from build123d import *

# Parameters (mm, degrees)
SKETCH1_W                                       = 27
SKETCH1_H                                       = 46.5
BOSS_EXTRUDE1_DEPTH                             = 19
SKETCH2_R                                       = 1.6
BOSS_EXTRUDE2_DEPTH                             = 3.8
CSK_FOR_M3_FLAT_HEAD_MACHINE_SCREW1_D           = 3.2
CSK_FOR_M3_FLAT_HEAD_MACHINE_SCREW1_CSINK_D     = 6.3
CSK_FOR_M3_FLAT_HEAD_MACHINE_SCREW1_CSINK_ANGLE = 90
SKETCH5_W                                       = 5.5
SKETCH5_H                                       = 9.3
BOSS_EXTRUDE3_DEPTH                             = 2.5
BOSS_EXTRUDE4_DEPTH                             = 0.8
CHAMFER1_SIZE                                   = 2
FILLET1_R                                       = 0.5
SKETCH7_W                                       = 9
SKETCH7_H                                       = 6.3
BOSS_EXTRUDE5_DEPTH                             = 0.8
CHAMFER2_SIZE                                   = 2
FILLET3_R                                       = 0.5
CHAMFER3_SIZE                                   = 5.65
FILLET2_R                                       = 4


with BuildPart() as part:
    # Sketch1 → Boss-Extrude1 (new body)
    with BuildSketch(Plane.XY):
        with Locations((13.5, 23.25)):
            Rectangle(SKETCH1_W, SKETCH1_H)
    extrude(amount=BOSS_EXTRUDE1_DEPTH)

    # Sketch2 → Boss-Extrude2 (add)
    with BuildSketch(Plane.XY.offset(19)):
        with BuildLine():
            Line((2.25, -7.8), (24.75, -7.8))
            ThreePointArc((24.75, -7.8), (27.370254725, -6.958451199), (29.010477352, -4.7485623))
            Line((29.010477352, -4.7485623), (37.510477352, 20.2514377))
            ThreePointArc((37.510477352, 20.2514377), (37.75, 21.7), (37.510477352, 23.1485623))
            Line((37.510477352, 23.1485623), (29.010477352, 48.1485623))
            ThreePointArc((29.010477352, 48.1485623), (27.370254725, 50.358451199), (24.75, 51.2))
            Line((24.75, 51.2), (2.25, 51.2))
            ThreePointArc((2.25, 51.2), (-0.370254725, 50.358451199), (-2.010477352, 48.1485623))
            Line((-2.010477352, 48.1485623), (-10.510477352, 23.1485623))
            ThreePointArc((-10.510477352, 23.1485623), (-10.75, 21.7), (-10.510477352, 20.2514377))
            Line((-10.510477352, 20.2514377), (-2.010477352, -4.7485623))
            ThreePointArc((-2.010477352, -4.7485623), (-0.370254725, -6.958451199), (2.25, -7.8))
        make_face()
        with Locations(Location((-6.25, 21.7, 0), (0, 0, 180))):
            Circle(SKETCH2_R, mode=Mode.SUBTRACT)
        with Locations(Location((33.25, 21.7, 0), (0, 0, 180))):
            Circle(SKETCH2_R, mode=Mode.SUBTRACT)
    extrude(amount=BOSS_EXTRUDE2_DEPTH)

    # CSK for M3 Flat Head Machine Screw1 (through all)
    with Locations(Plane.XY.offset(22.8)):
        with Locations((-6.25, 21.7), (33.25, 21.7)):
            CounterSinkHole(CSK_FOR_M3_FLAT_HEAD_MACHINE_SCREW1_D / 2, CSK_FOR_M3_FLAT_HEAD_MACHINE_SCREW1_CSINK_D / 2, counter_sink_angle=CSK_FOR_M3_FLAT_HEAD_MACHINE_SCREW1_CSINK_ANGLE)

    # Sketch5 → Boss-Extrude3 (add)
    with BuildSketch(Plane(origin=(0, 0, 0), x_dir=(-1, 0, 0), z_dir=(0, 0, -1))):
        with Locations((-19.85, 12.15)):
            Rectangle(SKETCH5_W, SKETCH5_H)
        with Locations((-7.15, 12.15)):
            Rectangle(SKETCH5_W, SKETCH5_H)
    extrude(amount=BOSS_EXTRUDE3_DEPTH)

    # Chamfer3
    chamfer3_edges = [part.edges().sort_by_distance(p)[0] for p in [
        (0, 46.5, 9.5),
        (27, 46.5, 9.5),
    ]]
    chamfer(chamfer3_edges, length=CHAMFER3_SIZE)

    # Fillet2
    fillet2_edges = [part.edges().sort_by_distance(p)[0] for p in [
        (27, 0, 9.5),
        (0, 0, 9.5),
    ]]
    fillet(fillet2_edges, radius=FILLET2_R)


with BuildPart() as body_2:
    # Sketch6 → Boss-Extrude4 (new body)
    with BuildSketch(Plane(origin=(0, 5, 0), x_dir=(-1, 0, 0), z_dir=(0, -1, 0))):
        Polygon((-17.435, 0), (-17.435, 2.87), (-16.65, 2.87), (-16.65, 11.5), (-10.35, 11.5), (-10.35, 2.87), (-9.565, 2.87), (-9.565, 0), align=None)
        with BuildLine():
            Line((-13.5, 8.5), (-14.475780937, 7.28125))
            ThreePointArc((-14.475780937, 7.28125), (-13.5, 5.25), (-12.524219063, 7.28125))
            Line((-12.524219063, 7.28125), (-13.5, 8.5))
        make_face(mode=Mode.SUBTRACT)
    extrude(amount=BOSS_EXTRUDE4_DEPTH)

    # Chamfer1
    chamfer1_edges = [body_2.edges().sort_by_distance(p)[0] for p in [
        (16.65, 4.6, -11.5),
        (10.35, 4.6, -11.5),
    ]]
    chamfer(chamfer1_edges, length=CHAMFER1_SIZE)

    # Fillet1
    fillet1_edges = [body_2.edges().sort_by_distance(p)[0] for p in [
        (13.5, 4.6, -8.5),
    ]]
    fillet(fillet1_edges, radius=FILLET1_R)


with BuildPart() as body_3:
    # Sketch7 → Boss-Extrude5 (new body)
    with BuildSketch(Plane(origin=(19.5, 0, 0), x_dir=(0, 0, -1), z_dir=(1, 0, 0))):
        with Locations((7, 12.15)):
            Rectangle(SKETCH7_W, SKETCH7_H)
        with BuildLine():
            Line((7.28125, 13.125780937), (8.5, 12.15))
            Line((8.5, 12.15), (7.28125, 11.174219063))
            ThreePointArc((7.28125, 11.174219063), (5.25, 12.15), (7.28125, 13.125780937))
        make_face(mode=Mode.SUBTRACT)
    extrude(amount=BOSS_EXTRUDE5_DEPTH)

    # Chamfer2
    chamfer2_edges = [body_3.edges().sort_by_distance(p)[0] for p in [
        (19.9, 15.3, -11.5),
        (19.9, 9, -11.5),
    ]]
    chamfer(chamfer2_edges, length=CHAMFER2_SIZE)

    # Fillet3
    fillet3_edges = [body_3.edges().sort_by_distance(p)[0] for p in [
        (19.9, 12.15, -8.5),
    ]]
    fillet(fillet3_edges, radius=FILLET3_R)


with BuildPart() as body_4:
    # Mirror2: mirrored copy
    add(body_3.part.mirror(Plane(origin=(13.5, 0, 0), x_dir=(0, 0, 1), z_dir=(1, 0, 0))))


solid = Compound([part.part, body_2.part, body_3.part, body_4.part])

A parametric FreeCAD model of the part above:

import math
import FreeCAD as App
import Part
import Sketcher
from FreeCAD import Vector
Q = App.Units.Quantity


def edges_at(feature, points):
    """Names of the edges that pass closest to the given points."""
    edges = feature.Shape.Edges
    near = lambda p: min(range(len(edges)), key=lambda i: edges[i].distToShape(Part.Vertex(*p))[0])
    return sorted({f"Edge{near(p) + 1}" for p in points})

doc = App.newDocument("Part")
body = doc.addObject("PartDesign::Body", "Body")

# Sketch on XY plane
sketch1 = body.newObject("Sketcher::SketchObject", "Sketch")
sketch1.AttachmentSupport = (doc.getObject("XY_Plane"), [""])
sketch1.MapMode = "FlatFace"
sketch1.addGeometry(Part.LineSegment(Vector(0, 46, 0), Vector(0, 0, 0)), False)
sketch1.addGeometry(Part.LineSegment(Vector(0, 0, 0), Vector(27, 0, 0)), False)
sketch1.addGeometry(Part.LineSegment(Vector(27, 0, 0), Vector(27, 46, 0)), False)
sketch1.addGeometry(Part.LineSegment(Vector(27, 46, 0), Vector(0, 46, 0)), False)
sketch1.addConstraint(Sketcher.Constraint("Coincident", 0, 2, 1, 1))
sketch1.addConstraint(Sketcher.Constraint("Coincident", 1, 2, 2, 1))
sketch1.addConstraint(Sketcher.Constraint("Coincident", 2, 2, 3, 1))
sketch1.addConstraint(Sketcher.Constraint("Coincident", 3, 2, 0, 1))
sketch1.addConstraint(Sketcher.Constraint("Vertical", 0))
sketch1.addConstraint(Sketcher.Constraint("Horizontal", 1))
sketch1.addConstraint(Sketcher.Constraint("Vertical", 2))
sketch1.addConstraint(Sketcher.Constraint("Horizontal", 3))
sketch1.addConstraint(Sketcher.Constraint("Coincident", 0, 2, -1, 1))
sketch1.addConstraint(Sketcher.Constraint("DistanceX", 1, 1, 1, 2, Q("27 mm")))
sketch1.addConstraint(Sketcher.Constraint("DistanceY", 0, 2, 0, 1, Q("46.5 mm")))
pad1 = body.newObject("PartDesign::Pad", "Pad")
pad1.Profile = sketch1
pad1.Length = 19

# Sketch on XY plane
sketch2 = body.newObject("Sketcher::SketchObject", "Sketch001")
sketch2.AttachmentSupport = (doc.getObject("XY_Plane"), [""])
sketch2.MapMode = "FlatFace"
sketch2.AttachmentOffset = App.Placement(Vector(0, 0, 19), App.Rotation())
sketch2.addGeometry(Part.LineSegment(Vector(2.2, -7.8, 0), Vector(24.8, -7.8, 0)), False)
sketch2.addGeometry(Part.ArcOfCircle(Part.Circle(Vector(24.7, -3.3, 0), Vector(0, 0, 1), 4.5), math.radians(-90), math.radians(-19)), False)
sketch2.addGeometry(Part.LineSegment(Vector(29, -4.7, 0), Vector(37.5, 20.3, 0)), False)
sketch2.addGeometry(Part.ArcOfCircle(Part.Circle(Vector(33.2, 21.7, 0), Vector(0, 0, 1), 4.5), math.radians(-19), math.radians(19)), False)
sketch2.addGeometry(Part.LineSegment(Vector(37.5, 23.1, 0), Vector(29, 48.1, 0)), False)
sketch2.addGeometry(Part.ArcOfCircle(Part.Circle(Vector(24.7, 46.7, 0), Vector(0, 0, 1), 4.5), math.radians(19), math.radians(90)), False)
sketch2.addGeometry(Part.LineSegment(Vector(24.8, 51.2, 0), Vector(2.2, 51.2, 0)), False)
sketch2.addGeometry(Part.ArcOfCircle(Part.Circle(Vector(2.3, 46.7, 0), Vector(0, 0, 1), 4.5), math.radians(90), math.radians(161)), False)
sketch2.addGeometry(Part.LineSegment(Vector(-2, 48.1, 0), Vector(-10.5, 23.1, 0)), False)
sketch2.addGeometry(Part.ArcOfCircle(Part.Circle(Vector(-6.2, 21.7, 0), Vector(0, 0, 1), 4.5), math.radians(161), math.radians(199)), False)
sketch2.addGeometry(Part.LineSegment(Vector(-10.5, 20.3, 0), Vector(-2, -4.7, 0)), False)
sketch2.addGeometry(Part.ArcOfCircle(Part.Circle(Vector(2.3, -3.3, 0), Vector(0, 0, 1), 4.5), math.radians(-161), math.radians(-90)), False)
sketch2.addGeometry(Part.Circle(Vector(-6.2, 21.7, 0), Vector(0, 0, 1), 1.6), False)
sketch2.addGeometry(Part.Circle(Vector(33.2, 21.7, 0), Vector(0, 0, 1), 1.6), False)
sketch2.addConstraint(Sketcher.Constraint("Tangent", 0, 2, 1, 1))
sketch2.addConstraint(Sketcher.Constraint("Tangent", 1, 2, 2, 1))
sketch2.addConstraint(Sketcher.Constraint("Tangent", 2, 2, 3, 1))
sketch2.addConstraint(Sketcher.Constraint("Tangent", 3, 2, 4, 1))
sketch2.addConstraint(Sketcher.Constraint("Tangent", 4, 2, 5, 1))
sketch2.addConstraint(Sketcher.Constraint("Tangent", 5, 2, 6, 1))
sketch2.addConstraint(Sketcher.Constraint("Tangent", 6, 2, 7, 1))
sketch2.addConstraint(Sketcher.Constraint("Tangent", 7, 2, 8, 1))
sketch2.addConstraint(Sketcher.Constraint("Tangent", 8, 2, 9, 1))
sketch2.addConstraint(Sketcher.Constraint("Tangent", 9, 2, 10, 1))
sketch2.addConstraint(Sketcher.Constraint("Tangent", 10, 2, 11, 1))
sketch2.addConstraint(Sketcher.Constraint("Tangent", 11, 2, 0, 1))
sketch2.addConstraint(Sketcher.Constraint("Horizontal", 0))
sketch2.addConstraint(Sketcher.Constraint("Horizontal", 6))
sketch2.addConstraint(Sketcher.Constraint("Coincident", 12, 3, 9, 3))
sketch2.addConstraint(Sketcher.Constraint("Coincident", 13, 3, 3, 3))
sketch2.addConstraint(Sketcher.Constraint("Equal", 1, 3))
sketch2.addConstraint(Sketcher.Constraint("Equal", 3, 5))
sketch2.addConstraint(Sketcher.Constraint("Equal", 5, 7))
sketch2.addConstraint(Sketcher.Constraint("Equal", 7, 9))
sketch2.addConstraint(Sketcher.Constraint("Equal", 9, 11))
sketch2.addConstraint(Sketcher.Constraint("Equal", 12, 13))
sketch2.addConstraint(Sketcher.Constraint("Parallel", 2, 8))
sketch2.addConstraint(Sketcher.Constraint("Parallel", 4, 10))
sketch2.addConstraint(Sketcher.Constraint("Horizontal", 3, 3, 9, 3))
sketch2.addConstraint(Sketcher.Constraint("Horizontal", 4, 2, 7, 2))
sketch2.addConstraint(Sketcher.Constraint("Vertical", 1, 3, 5, 3))
sketch2.addConstraint(Sketcher.Constraint("Diameter", 12, Q("3.2 mm")))
sketch2.addConstraint(Sketcher.Constraint("Radius", 1, Q("4.5 mm")))
sketch2.addConstraint(Sketcher.Constraint("DistanceX", 0, 1, 0, 2, Q("22.5 mm")))
sketch2.addConstraint(Sketcher.Constraint("DistanceY", 1, 3, 3, 3, Q("25 mm")))
sketch2.addConstraint(Sketcher.Constraint("DistanceX", 7, 3, 3, 3, Q("31 mm")))
sketch2.addConstraint(Sketcher.Constraint("DistanceY", 1, 3, -1, 1, Q("3.3 mm")))
sketch2.addConstraint(Sketcher.Constraint("DistanceX", -1, 1, 1, 3, Q("24.75 mm")))
pad2 = body.newObject("PartDesign::Pad", "Pad001")
pad2.Profile = sketch2
pad2.Length = 3.8

# Sketch on XY plane
sketch3 = body.newObject("Sketcher::SketchObject", "Sketch002")
sketch3.AttachmentSupport = (doc.getObject("XY_Plane"), [""])
sketch3.MapMode = "FlatFace"
sketch3.AttachmentOffset = App.Placement(Vector(0, 0, 22.8), App.Rotation())
sketch3.addGeometry(Part.Circle(Vector(-6.2, 21.7, 0), Vector(0, 0, 1), 1.6), False)
sketch3.addGeometry(Part.Circle(Vector(33.2, 21.7, 0), Vector(0, 0, 1), 1.6), False)
sketch3.addConstraint(Sketcher.Constraint("Equal", 0, 1))
sketch3.addConstraint(Sketcher.Constraint("Horizontal", 0, 3, 1, 3))
sketch3.addConstraint(Sketcher.Constraint("Diameter", 0, Q("3.2 mm")))
sketch3.addConstraint(Sketcher.Constraint("DistanceY", -1, 1, 0, 3, Q("21.7 mm")))
sketch3.addConstraint(Sketcher.Constraint("DistanceX", 0, 3, 1, 3, Q("39.5 mm")))
sketch3.addConstraint(Sketcher.Constraint("DistanceX", 0, 3, -1, 1, Q("6.25 mm")))
doc.recompute()
hole = body.newObject("PartDesign::Hole", "Hole")
hole.Profile = sketch3
hole.ThreadType = "None"
hole.Diameter = 3.2
hole.DepthType = "ThroughAll"
hole.HoleCutType = "Countersink"
hole.HoleCutDiameter = 6.3
hole.HoleCutCountersinkAngle = 90

# Sketch on XY plane
sketch4 = body.newObject("Sketcher::SketchObject", "Sketch003")
sketch4.AttachmentSupport = (doc.getObject("XY_Plane"), [""])
sketch4.MapMode = "FlatFace"
sketch4.addGeometry(Part.LineSegment(Vector(23, 17, 0), Vector(23, 8, 0)), False)
sketch4.addGeometry(Part.LineSegment(Vector(23, 8, 0), Vector(17, 8, 0)), False)
sketch4.addGeometry(Part.LineSegment(Vector(17, 8, 0), Vector(17, 17, 0)), False)
sketch4.addGeometry(Part.LineSegment(Vector(17, 17, 0), Vector(23, 17, 0)), False)
sketch4.addGeometry(Part.LineSegment(Vector(10, 17, 0), Vector(10, 8, 0)), False)
sketch4.addGeometry(Part.LineSegment(Vector(10, 8, 0), Vector(4, 8, 0)), False)
sketch4.addGeometry(Part.LineSegment(Vector(4, 8, 0), Vector(4, 17, 0)), False)
sketch4.addGeometry(Part.LineSegment(Vector(4, 17, 0), Vector(10, 17, 0)), False)
sketch4.addConstraint(Sketcher.Constraint("Coincident", 0, 2, 1, 1))
sketch4.addConstraint(Sketcher.Constraint("Coincident", 1, 2, 2, 1))
sketch4.addConstraint(Sketcher.Constraint("Coincident", 2, 2, 3, 1))
sketch4.addConstraint(Sketcher.Constraint("Coincident", 3, 2, 0, 1))
sketch4.addConstraint(Sketcher.Constraint("Coincident", 4, 2, 5, 1))
sketch4.addConstraint(Sketcher.Constraint("Coincident", 5, 2, 6, 1))
sketch4.addConstraint(Sketcher.Constraint("Coincident", 6, 2, 7, 1))
sketch4.addConstraint(Sketcher.Constraint("Coincident", 7, 2, 4, 1))
sketch4.addConstraint(Sketcher.Constraint("Vertical", 0))
sketch4.addConstraint(Sketcher.Constraint("Horizontal", 1))
sketch4.addConstraint(Sketcher.Constraint("Vertical", 2))
sketch4.addConstraint(Sketcher.Constraint("Horizontal", 3))
sketch4.addConstraint(Sketcher.Constraint("Vertical", 4))
sketch4.addConstraint(Sketcher.Constraint("Horizontal", 5))
sketch4.addConstraint(Sketcher.Constraint("Vertical", 6))
sketch4.addConstraint(Sketcher.Constraint("Horizontal", 7))
sketch4.addConstraint(Sketcher.Constraint("Horizontal", 1, 2, 4, 2))
sketch4.addConstraint(Sketcher.Constraint("Horizontal", 3, 2, 6, 2))
sketch4.addConstraint(Sketcher.Constraint("Equal", 3, 5))
sketch4.addConstraint(Sketcher.Constraint("DistanceX", 1, 2, 1, 1, Q("5.5 mm")))
sketch4.addConstraint(Sketcher.Constraint("DistanceY", 0, 2, 0, 1, Q("9.3 mm")))
sketch4.addConstraint(Sketcher.Constraint("DistanceX", -1, 1, 0, 2, Q("22.6 mm")))
sketch4.addConstraint(Sketcher.Constraint("DistanceY", -1, 1, 0, 2, Q("7.5 mm")))
sketch4.addConstraint(Sketcher.Constraint("DistanceX", -1, 1, 4, 2, Q("9.9 mm")))
pad3 = body.newObject("PartDesign::Pad", "Pad002")
pad3.Profile = sketch4
pad3.Length = 2.5
pad3.Reversed = True
doc.recompute()

chamfer = body.newObject("PartDesign::Chamfer", "Chamfer")
chamfer.Base = (pad3, edges_at(pad3, [(0, 46.5, 9.5), (27, 46.5, 9.5)]))
chamfer.Size = 5.65
doc.recompute()

fillet = body.newObject("PartDesign::Fillet", "Fillet")
fillet.Base = (chamfer, edges_at(chamfer, [(27, 0, 9.5), (0, 0, 9.5)]))
fillet.Radius = 4
body2 = doc.addObject("PartDesign::Body", "Body001")

# Sketch on XZ plane
sketch5 = body2.newObject("Sketcher::SketchObject", "Sketch004")
sketch5.AttachmentSupport = (doc.getObject("XZ_Plane001"), [""])
sketch5.MapMode = "FlatFace"
sketch5.AttachmentOffset = App.Placement(Vector(0, 0, -5), App.Rotation())
sketch5.addGeometry(Part.LineSegment(Vector(17.4, -2.9, 0), Vector(17.4, 0, 0)), False)
sketch5.addGeometry(Part.LineSegment(Vector(17.4, 0, 0), Vector(9.6, 0, 0)), False)
sketch5.addGeometry(Part.LineSegment(Vector(9.6, 0, 0), Vector(9.6, -2.9, 0)), False)
sketch5.addGeometry(Part.LineSegment(Vector(9.6, -2.9, 0), Vector(10.3, -2.9, 0)), False)
sketch5.addGeometry(Part.LineSegment(Vector(10.3, -2.9, 0), Vector(10.3, -11.5, 0)), False)
sketch5.addGeometry(Part.LineSegment(Vector(10.3, -11.5, 0), Vector(16.6, -11.5, 0)), False)
sketch5.addGeometry(Part.LineSegment(Vector(16.6, -11.5, 0), Vector(16.6, -2.9, 0)), False)
sketch5.addGeometry(Part.LineSegment(Vector(16.6, -2.9, 0), Vector(17.4, -2.9, 0)), False)
sketch5.addGeometry(Part.LineSegment(Vector(13.5, -8.5, 0), Vector(12.5, -7.3, 0)), False)
sketch5.addGeometry(Part.ArcOfCircle(Part.Circle(Vector(13.5, -6.5, 0), Vector(0, 0, 1), 1.2), math.radians(-39), math.radians(219)), False)
sketch5.addGeometry(Part.LineSegment(Vector(14.5, -7.3, 0), Vector(13.5, -8.5, 0)), False)
sketch5.addConstraint(Sketcher.Constraint("Coincident", 0, 2, 1, 1))
sketch5.addConstraint(Sketcher.Constraint("Coincident", 1, 2, 2, 1))
sketch5.addConstraint(Sketcher.Constraint("Coincident", 2, 2, 3, 1))
sketch5.addConstraint(Sketcher.Constraint("Coincident", 3, 2, 4, 1))
sketch5.addConstraint(Sketcher.Constraint("Coincident", 4, 2, 5, 1))
sketch5.addConstraint(Sketcher.Constraint("Coincident", 5, 2, 6, 1))
sketch5.addConstraint(Sketcher.Constraint("Coincident", 6, 2, 7, 1))
sketch5.addConstraint(Sketcher.Constraint("Coincident", 7, 2, 0, 1))
sketch5.addConstraint(Sketcher.Constraint("Tangent", 8, 2, 9, 2))
sketch5.addConstraint(Sketcher.Constraint("Tangent", 9, 1, 10, 1))
sketch5.addConstraint(Sketcher.Constraint("Coincident", 10, 2, 8, 1))
sketch5.addConstraint(Sketcher.Constraint("Vertical", 0))
sketch5.addConstraint(Sketcher.Constraint("Horizontal", 1))
sketch5.addConstraint(Sketcher.Constraint("Vertical", 2))
sketch5.addConstraint(Sketcher.Constraint("Horizontal", 3))
sketch5.addConstraint(Sketcher.Constraint("Vertical", 4))
sketch5.addConstraint(Sketcher.Constraint("Horizontal", 5))
sketch5.addConstraint(Sketcher.Constraint("Vertical", 6))
sketch5.addConstraint(Sketcher.Constraint("Horizontal", 7))
sketch5.addConstraint(Sketcher.Constraint("PointOnObject", 0, 2, -1))
sketch5.addConstraint(Sketcher.Constraint("Horizontal", 3, 2, 6, 2))
sketch5.addConstraint(Sketcher.Constraint("Horizontal", 8, 2, 9, 1))
sketch5.addConstraint(Sketcher.Constraint("Equal", 3, 7))
sketch5.addConstraint(Sketcher.Constraint("Radius", 9, Q("1.25 mm")))
sketch5.addConstraint(Sketcher.Constraint("DistanceX", 5, 1, 5, 2, Q("6.3 mm")))
sketch5.addConstraint(Sketcher.Constraint("DistanceY", 4, 2, 9, 3, Q("5 mm")))
sketch5.addConstraint(Sketcher.Constraint("DistanceY", 10, 2, 9, 3, Q("2 mm")))
sketch5.addConstraint(Sketcher.Constraint("DistanceX", 1, 2, 1, 1, Q("7.87 mm")))
sketch5.addConstraint(Sketcher.Constraint("DistanceY", 0, 1, 0, 2, Q("2.87 mm")))
sketch5.addConstraint(Sketcher.Constraint("DistanceY", 4, 2, 4, 1, Q("8.63 mm")))
sketch5.addConstraint(Sketcher.Constraint("DistanceX", -1, 1, 9, 3, Q("13.5 mm")))
sketch5.addConstraint(Sketcher.Constraint("DistanceX", -1, 1, 3, 2, Q("10.35 mm")))
pad4 = body2.newObject("PartDesign::Pad", "Pad003")
pad4.Profile = sketch5
pad4.Length = 0.8
doc.recompute()

chamfer2 = body2.newObject("PartDesign::Chamfer", "Chamfer001")
chamfer2.Base = (pad4, edges_at(pad4, [(16.65, 4.6, -11.5), (10.35, 4.6, -11.5)]))
chamfer2.Size = 2
doc.recompute()

fillet2 = body2.newObject("PartDesign::Fillet", "Fillet001")
fillet2.Base = (chamfer2, edges_at(chamfer2, [(13.5, 4.6, -8.5)]))
fillet2.Radius = 0.5
body3 = doc.addObject("PartDesign::Body", "Body002")

# Sketch on YZ plane
sketch6 = body3.newObject("Sketcher::SketchObject", "Sketch005")
sketch6.AttachmentSupport = (doc.getObject("YZ_Plane002"), [""])
sketch6.MapMode = "FlatFace"
sketch6.AttachmentOffset = App.Placement(Vector(0, 0, 19.5), App.Rotation())
sketch6.addGeometry(Part.LineSegment(Vector(15.3, -2.5, 0), Vector(9, -2.5, 0)), False)
sketch6.addGeometry(Part.LineSegment(Vector(9, -2.5, 0), Vector(9, -11.5, 0)), False)
sketch6.addGeometry(Part.LineSegment(Vector(9, -11.5, 0), Vector(15.3, -11.5, 0)), False)
sketch6.addGeometry(Part.LineSegment(Vector(15.3, -11.5, 0), Vector(15.3, -2.5, 0)), False)
sketch6.addGeometry(Part.ArcOfCircle(Part.Circle(Vector(12.2, -6.5, 0), Vector(0, 0, 1), 1.2), math.radians(-39), math.radians(219)), False)
sketch6.addGeometry(Part.LineSegment(Vector(13.1, -7.3, 0), Vector(12.2, -8.5, 0)), False)
sketch6.addGeometry(Part.LineSegment(Vector(12.2, -8.5, 0), Vector(11.2, -7.3, 0)), False)
sketch6.addConstraint(Sketcher.Constraint("Coincident", 0, 2, 1, 1))
sketch6.addConstraint(Sketcher.Constraint("Coincident", 1, 2, 2, 1))
sketch6.addConstraint(Sketcher.Constraint("Coincident", 2, 2, 3, 1))
sketch6.addConstraint(Sketcher.Constraint("Coincident", 3, 2, 0, 1))
sketch6.addConstraint(Sketcher.Constraint("Tangent", 4, 1, 5, 1))
sketch6.addConstraint(Sketcher.Constraint("Coincident", 5, 2, 6, 1))
sketch6.addConstraint(Sketcher.Constraint("Tangent", 6, 2, 4, 2))
sketch6.addConstraint(Sketcher.Constraint("Horizontal", 0))
sketch6.addConstraint(Sketcher.Constraint("Vertical", 1))
sketch6.addConstraint(Sketcher.Constraint("Horizontal", 2))
sketch6.addConstraint(Sketcher.Constraint("Vertical", 3))
sketch6.addConstraint(Sketcher.Constraint("Horizontal", 4, 1, 6, 2))
sketch6.addConstraint(Sketcher.Constraint("DistanceY", 1, 2, 1, 1, Q("9 mm")))
sketch6.addConstraint(Sketcher.Constraint("Radius", 4, Q("1.25 mm")))
sketch6.addConstraint(Sketcher.Constraint("DistanceX", 0, 2, 0, 1, Q("6.3 mm")))
sketch6.addConstraint(Sketcher.Constraint("DistanceX", -1, 1, 0, 2, Q("9 mm")))
sketch6.addConstraint(Sketcher.Constraint("DistanceY", 4, 3, 0, 2, Q("4 mm")))
sketch6.addConstraint(Sketcher.Constraint("DistanceY", 5, 2, 4, 3, Q("2 mm")))
sketch6.addConstraint(Sketcher.Constraint("DistanceY", 4, 3, -1, 1, Q("6.5 mm")))
sketch6.addConstraint(Sketcher.Constraint("DistanceX", -1, 1, 4, 3, Q("12.15 mm")))
pad5 = body3.newObject("PartDesign::Pad", "Pad004")
pad5.Profile = sketch6
pad5.Length = 0.8
doc.recompute()

chamfer3 = body3.newObject("PartDesign::Chamfer", "Chamfer002")
chamfer3.Base = (pad5, edges_at(pad5, [(19.9, 15.3, -11.5), (19.9, 9, -11.5)]))
chamfer3.Size = 2
doc.recompute()

fillet3 = body3.newObject("PartDesign::Fillet", "Fillet002")
fillet3.Base = (chamfer3, edges_at(chamfer3, [(19.9, 12.15, -8.5)]))
fillet3.Radius = 0.5
body4 = doc.addObject("PartDesign::Body", "Body003")
doc.recompute()

mirroring = doc.addObject("Part::Mirroring", "Mirroring")
mirroring.Source = body3
mirroring.Base = Vector(13.5, 0, 0)
mirroring.Normal = Vector(1, 0, 0)
body4.BaseFeature = mirroring
doc.recompute()
mirroring.Visibility = False

doc.recompute()
